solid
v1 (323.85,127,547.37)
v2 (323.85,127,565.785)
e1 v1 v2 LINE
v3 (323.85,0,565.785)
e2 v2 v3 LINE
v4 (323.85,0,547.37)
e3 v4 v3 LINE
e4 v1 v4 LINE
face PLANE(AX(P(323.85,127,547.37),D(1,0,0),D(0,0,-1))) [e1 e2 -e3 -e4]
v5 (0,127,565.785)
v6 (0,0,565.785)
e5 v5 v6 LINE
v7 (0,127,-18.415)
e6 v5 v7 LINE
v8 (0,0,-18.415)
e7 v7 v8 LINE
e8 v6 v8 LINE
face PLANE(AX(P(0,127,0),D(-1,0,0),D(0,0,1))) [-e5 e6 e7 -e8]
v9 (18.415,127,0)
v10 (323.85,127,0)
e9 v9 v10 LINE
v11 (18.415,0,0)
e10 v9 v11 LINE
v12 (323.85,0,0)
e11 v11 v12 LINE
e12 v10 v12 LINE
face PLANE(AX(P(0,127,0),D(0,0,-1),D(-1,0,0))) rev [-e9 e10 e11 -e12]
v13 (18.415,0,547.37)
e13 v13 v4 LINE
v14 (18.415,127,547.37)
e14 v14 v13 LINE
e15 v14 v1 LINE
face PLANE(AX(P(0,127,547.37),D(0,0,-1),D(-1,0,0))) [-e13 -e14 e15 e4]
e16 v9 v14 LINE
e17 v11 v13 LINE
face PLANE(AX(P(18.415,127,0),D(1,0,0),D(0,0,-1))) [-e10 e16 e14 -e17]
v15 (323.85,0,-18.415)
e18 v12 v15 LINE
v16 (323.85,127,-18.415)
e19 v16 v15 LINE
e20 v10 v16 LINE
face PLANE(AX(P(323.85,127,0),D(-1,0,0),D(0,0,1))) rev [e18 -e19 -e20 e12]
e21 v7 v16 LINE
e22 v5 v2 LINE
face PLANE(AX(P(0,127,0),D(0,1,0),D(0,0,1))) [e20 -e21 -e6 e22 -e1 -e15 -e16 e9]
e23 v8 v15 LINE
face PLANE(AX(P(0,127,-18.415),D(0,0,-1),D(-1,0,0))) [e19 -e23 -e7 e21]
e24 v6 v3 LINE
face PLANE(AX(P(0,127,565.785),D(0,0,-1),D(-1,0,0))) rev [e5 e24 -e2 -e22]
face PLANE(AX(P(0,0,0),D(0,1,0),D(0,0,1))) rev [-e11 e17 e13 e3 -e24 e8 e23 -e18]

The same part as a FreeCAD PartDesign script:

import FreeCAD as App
import Part
import Sketcher
from FreeCAD import Vector
Q = App.Units.Quantity

doc = App.newDocument("Part")
body = doc.addObject("PartDesign::Body", "Body")

# Sketch on XZ plane
sketch1 = doc.addObject("Sketcher::SketchObject", "Sketch")
body.addObject(sketch1)
sketch1.AttachmentSupport = (doc.XZ_Plane, [""])
sketch1.MapMode = "FlatFace"
sketch1.addGeometry(Part.LineSegment(Vector(0, -18, 0), Vector(0, 566, 0)), False)
sketch1.addGeometry(Part.LineSegment(Vector(0, 566, 0), Vector(324, 566, 0)), False)
sketch1.addGeometry(Part.LineSegment(Vector(324, 566, 0), Vector(324, 547, 0)), False)
sketch1.addGeometry(Part.LineSegment(Vector(324, 547, 0), Vector(18, 547, 0)), False)
sketch1.addGeometry(Part.LineSegment(Vector(18, 547, 0), Vector(18, 0, 0)), False)
sketch1.addGeometry(Part.LineSegment(Vector(18, 0, 0), Vector(324, 0, 0)), False)
sketch1.addGeometry(Part.LineSegment(Vector(324, 0, 0), Vector(324, -18, 0)), False)
sketch1.addGeometry(Part.LineSegment(Vector(324, -18, 0), Vector(0, -18, 0)), False)
sketch1.addConstraint(Sketcher.Constraint("Coincident", 0, 2, 1, 1))
sketch1.addConstraint(Sketcher.Constraint("Coincident", 1, 2, 2, 1))
sketch1.addConstraint(Sketcher.Constraint("Coincident", 2, 2, 3, 1))
sketch1.addConstraint(Sketcher.Constraint("Coincident", 3, 2, 4, 1))
sketch1.addConstraint(Sketcher.Constraint("Coincident", 4, 2, 5, 1))
sketch1.addConstraint(Sketcher.Constraint("Coincident", 5, 2, 6, 1))
sketch1.addConstraint(Sketcher.Constraint("Coincident", 6, 2, 7, 1))
sketch1.addConstraint(Sketcher.Constraint("Coincident", 7, 2, 0, 1))
sketch1.addConstraint(Sketcher.Constraint("Vertical", 0))
sketch1.addConstraint(Sketcher.Constraint("Horizontal", 1))
sketch1.addConstraint(Sketcher.Constraint("Vertical", 2))
sketch1.addConstraint(Sketcher.Constraint("Horizontal", 3))
sketch1.addConstraint(Sketcher.Constraint("Vertical", 4))
sketch1.addConstraint(Sketcher.Constraint("Horizontal", 5))
sketch1.addConstraint(Sketcher.Constraint("Vertical", 6))
sketch1.addConstraint(Sketcher.Constraint("Horizontal", 7))
sketch1.addConstraint(Sketcher.Constraint("PointOnObject", 0, 2, -2))
sketch1.addConstraint(Sketcher.Constraint("PointOnObject", 4, 2, -1))
sketch1.addConstraint(Sketcher.Constraint("Vertical", 2, 2, 5, 2))
sketch1.addConstraint(Sketcher.Constraint("Equal", 2, 6))
sketch1.addConstraint(Sketcher.Constraint("DistanceY", 0, 1, 0, 2, Q("23 in")))
sketch1.addConstraint(Sketcher.Constraint("DistanceX", 1, 1, 1, 2, Q("12.75 in")))
sketch1.addConstraint(Sketcher.Constraint("DistanceY", 4, 2, 4, 1, Q("21.55 in")))
sketch1.addConstraint(Sketcher.Constraint("DistanceX", 3, 2, 3, 1, Q("12.025 in")))
pad1 = doc.addObject("PartDesign::Pad", "Pad")
body.addObject(pad1)
pad1.Profile = sketch1
pad1.Length = Q("5 in")
pad1.Reversed = True

doc.recompute()
